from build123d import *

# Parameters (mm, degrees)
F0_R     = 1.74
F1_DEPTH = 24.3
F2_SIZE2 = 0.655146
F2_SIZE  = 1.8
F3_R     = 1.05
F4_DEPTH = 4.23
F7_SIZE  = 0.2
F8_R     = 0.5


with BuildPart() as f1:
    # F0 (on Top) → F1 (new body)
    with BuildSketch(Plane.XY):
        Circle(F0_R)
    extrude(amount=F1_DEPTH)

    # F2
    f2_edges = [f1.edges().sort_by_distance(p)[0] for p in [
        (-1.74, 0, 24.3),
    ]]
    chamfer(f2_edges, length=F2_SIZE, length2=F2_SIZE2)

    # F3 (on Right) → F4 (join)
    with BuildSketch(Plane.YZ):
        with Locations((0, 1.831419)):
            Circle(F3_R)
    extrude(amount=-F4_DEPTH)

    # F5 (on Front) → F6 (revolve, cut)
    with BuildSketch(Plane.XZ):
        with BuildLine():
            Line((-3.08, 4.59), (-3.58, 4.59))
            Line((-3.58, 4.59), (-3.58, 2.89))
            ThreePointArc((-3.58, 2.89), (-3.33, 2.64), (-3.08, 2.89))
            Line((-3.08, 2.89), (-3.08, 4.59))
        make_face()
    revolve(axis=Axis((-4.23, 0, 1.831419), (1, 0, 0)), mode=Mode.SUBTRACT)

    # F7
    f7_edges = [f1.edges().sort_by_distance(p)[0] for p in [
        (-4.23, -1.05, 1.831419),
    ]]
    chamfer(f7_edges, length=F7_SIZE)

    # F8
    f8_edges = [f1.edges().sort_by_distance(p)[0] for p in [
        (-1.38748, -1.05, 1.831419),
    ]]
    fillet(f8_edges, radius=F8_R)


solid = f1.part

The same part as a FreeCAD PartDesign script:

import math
import FreeCAD as App
import Part
import Sketcher

V = App.Vector


def edges_at(feature, points):
    """Names of the edges that pass closest to the given points."""
    edges = feature.Shape.Edges
    near = lambda p: min(range(len(edges)), key=lambda i: edges[i].distToShape(Part.Vertex(*p))[0])
    return sorted({f"Edge{near(p) + 1}" for p in points})

doc = App.newDocument("Part")
params = doc.addObject("Spreadsheet::Sheet", "Params")
for row, (alias, value) in enumerate([
    ("sketch1_diameter", "3.48 mm"),
    ("pad1_length", "24.3 mm"),
    ("chamfer_size", "1.8 mm"),
    ("chamfer_size2", "0.655146 mm"),
    ("sketch2_diameter", "2.1 mm"),
    ("pad2_length", "4.23 mm"),
    ("sketch3_radius", "0.25 mm"),
    ("sketch3_height", "1.7 mm"),
    ("groove_angle", "360 deg"),
    ("chamfer2_size", "0.2 mm"),
    ("fillet_radius", "0.5 mm"),
], start=1):
    params.set(f"A{row}", alias)
    params.set(f"B{row}", "=" + value)
    params.setAlias(f"B{row}", alias)

body = doc.addObject("PartDesign::Body", "Body")

sketch1 = body.newObject("Sketcher::SketchObject", "Sketch")
sketch1.AttachmentSupport = (doc.getObject("XY_Plane"), [""])
sketch1.MapMode = "FlatFace"
sketch1.addGeometry(Part.Circle(V(0, 0, 0), V(0, 0, 1), 1.74), False)
sketch1.addConstraint([
    Sketcher.Constraint("Coincident", 0, 3, -1, 1),
    Sketcher.Constraint("Diameter", 0, 3.48),
])
sketch1.setExpression("Constraints[1]", "Params.sketch1_diameter")
pad1 = body.newObject("PartDesign::Pad", "Pad")
pad1.Profile = sketch1
pad1.setExpression("Length", "Params.pad1_length")
doc.recompute()

chamfer = body.newObject("PartDesign::Chamfer", "Chamfer")
chamfer.Base = (pad1, edges_at(pad1, [(-1.74, 0, 24.3)]))
chamfer.ChamferType = "Two distances"
chamfer.setExpression("Size", "Params.chamfer_size")
chamfer.setExpression("Size2", "Params.chamfer_size2")

sketch2 = body.newObject("Sketcher::SketchObject", "Sketch001")
sketch2.AttachmentSupport = (doc.getObject("YZ_Plane"), [""])
sketch2.MapMode = "FlatFace"
sketch2.addGeometry(Part.Circle(V(0, 1.831419, 0), V(0, 0, 1), 1.05), False)
sketch2.addConstraint([
    Sketcher.Constraint("PointOnObject", 0, 3, -2),
    Sketcher.Constraint("Diameter", 0, 2.1),
    Sketcher.Constraint("DistanceY", -1, 1, 0, 3, 1.831419),
])
sketch2.setExpression("Constraints[1]", "Params.sketch2_diameter")
pad2 = body.newObject("PartDesign::Pad", "Pad001")
pad2.Profile = sketch2
pad2.setExpression("Length", "Params.pad2_length")
pad2.Reversed = True

sketch3 = body.newObject("Sketcher::SketchObject", "Sketch002")
sketch3.AttachmentSupport = (doc.getObject("XZ_Plane"), [""])
sketch3.MapMode = "FlatFace"
sketch3.addGeometry([
    Part.LineSegment(V(-3.08, 4.59, 0), V(-3.58, 4.59, 0)),
    Part.LineSegment(V(-3.58, 4.59, 0), V(-3.58, 2.89, 0)),
    Part.ArcOfCircle(Part.Circle(V(-3.33, 2.89, 0), V(0, 0, 1), 0.25), math.radians(180), math.radians(360)),
    Part.LineSegment(V(-3.08, 2.89, 0), V(-3.08, 4.59, 0)),
], False)
sketch3.addGeometry(Part.LineSegment(V(-3.58, 1.831419, 0), V(-3.08, 1.831419, 0)), True)
sketch3.addConstraint([
    Sketcher.Constraint("Coincident", 0, 2, 1, 1),
    Sketcher.Constraint("Tangent", 1, 2, 2, 1),
    Sketcher.Constraint("Tangent", 2, 2, 3, 1),
    Sketcher.Constraint("Coincident", 3, 2, 0, 1),
    Sketcher.Constraint("Horizontal", 0),
    Sketcher.Constraint("Vertical", 1),
    Sketcher.Constraint("Vertical", 3),
    Sketcher.Constraint("Horizontal", 4),
    Sketcher.Constraint("Vertical", 1, 2, 4, 1),
    Sketcher.Constraint("Vertical", 3, 2, 4, 2),
    Sketcher.Constraint("Radius", 2, 0.25),
    Sketcher.Constraint("DistanceY", 1, 2, 1, 1, 1.7),
    Sketcher.Constraint("DistanceX", 2, 3, -1, 1, 3.33),
    Sketcher.Constraint("DistanceY", -1, 1, 2, 3, 2.89),
    Sketcher.Constraint("DistanceY", -1, 1, 4, 1, 1.831419),
])
sketch3.setExpression("Constraints[10]", "Params.sketch3_radius")
sketch3.setExpression("Constraints[11]", "Params.sketch3_height")
groove = body.newObject("PartDesign::Groove", "Groove")
groove.Profile = sketch3
groove.ReferenceAxis = (sketch3, ["Axis0"])
groove.setExpression("Angle", "Params.groove_angle")
doc.recompute()

chamfer2 = body.newObject("PartDesign::Chamfer", "Chamfer001")
chamfer2.Base = (groove, edges_at(groove, [(-4.23, -1.05, 1.831)]))
chamfer2.setExpression("Size", "Params.chamfer2_size")
doc.recompute()

fillet = body.newObject("PartDesign::Fillet", "Fillet")
fillet.Base = (chamfer2, edges_at(chamfer2, [(-1.387, -1.05, 1.831)]))
fillet.setExpression("Radius", "Params.fillet_radius")

doc.recompute()
